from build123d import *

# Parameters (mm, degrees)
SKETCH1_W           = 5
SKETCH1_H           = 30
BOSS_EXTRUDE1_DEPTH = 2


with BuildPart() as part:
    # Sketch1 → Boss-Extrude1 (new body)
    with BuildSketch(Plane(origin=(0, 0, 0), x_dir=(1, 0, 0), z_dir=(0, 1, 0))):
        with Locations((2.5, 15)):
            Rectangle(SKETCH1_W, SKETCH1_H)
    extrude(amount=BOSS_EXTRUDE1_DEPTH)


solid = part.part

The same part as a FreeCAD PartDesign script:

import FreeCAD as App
import Part
import Sketcher
from FreeCAD import Vector


def add_polygon(sketch, points):
    """Adds a closed chain of lines whose ends are joined by coincident constraints."""
    first, n = sketch.GeometryCount, len(points)
    for a, b in zip(points, points[1:] + points[:1]):
        sketch.addGeometry(Part.LineSegment(App.Vector(*a, 0), App.Vector(*b, 0)), False)
    for i in range(n):
        sketch.addConstraint(Sketcher.Constraint("Coincident", first + i, 2, first + (i + 1) % n, 1))

doc = App.newDocument("Part")
body = doc.addObject("PartDesign::Body", "Body")

# Sketch on XZ plane
sketch1 = doc.addObject("Sketcher::SketchObject", "Sketch")
body.addObject(sketch1)
sketch1.AttachmentSupport = (doc.XZ_Plane, [""])
sketch1.MapMode = "FlatFace"
add_polygon(sketch1, [(0, -30), (0, 0), (5, 0), (5, -30)])  # lines 0-3
sketch1.addConstraint([
    Sketcher.Constraint("Vertical", 0),
    Sketcher.Constraint("Horizontal", 1),
    Sketcher.Constraint("Vertical", 2),
    Sketcher.Constraint("Horizontal", 3),
    Sketcher.Constraint("Coincident", 0, 2, -1, 1),
    Sketcher.Constraint("DistanceX", 1, 1, 1, 2, 5.0),
    Sketcher.Constraint("DistanceY", 0, 1, 0, 2, 30.0),
])
pad1 = doc.addObject("PartDesign::Pad", "Pad")
body.addObject(pad1)
pad1.Profile = sketch1
pad1.Length = 2
pad1.Reversed = True

doc.recompute()
